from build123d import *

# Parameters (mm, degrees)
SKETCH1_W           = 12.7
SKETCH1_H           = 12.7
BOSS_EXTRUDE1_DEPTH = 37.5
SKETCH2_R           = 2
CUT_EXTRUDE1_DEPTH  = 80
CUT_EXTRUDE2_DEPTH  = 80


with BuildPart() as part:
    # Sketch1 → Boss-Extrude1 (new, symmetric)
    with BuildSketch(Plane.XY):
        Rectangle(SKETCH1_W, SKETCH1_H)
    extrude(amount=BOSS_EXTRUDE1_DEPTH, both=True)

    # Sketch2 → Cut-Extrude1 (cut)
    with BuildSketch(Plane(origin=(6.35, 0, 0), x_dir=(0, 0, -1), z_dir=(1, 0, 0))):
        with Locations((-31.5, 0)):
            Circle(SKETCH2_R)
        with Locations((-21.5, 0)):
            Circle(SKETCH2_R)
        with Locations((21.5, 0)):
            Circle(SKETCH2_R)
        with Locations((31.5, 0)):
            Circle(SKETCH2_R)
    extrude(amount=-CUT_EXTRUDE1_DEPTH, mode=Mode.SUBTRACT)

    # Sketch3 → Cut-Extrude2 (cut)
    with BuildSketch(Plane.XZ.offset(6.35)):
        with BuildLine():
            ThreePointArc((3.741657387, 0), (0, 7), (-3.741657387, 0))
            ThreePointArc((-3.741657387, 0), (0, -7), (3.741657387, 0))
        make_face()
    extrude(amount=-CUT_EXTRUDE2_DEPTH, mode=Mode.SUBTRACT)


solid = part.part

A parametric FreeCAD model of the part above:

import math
import FreeCAD as App
import Part
import Sketcher
from FreeCAD import Vector

doc = App.newDocument("Part")
body = doc.addObject("PartDesign::Body", "Body")

sketch1 = doc.addObject("Sketcher::SketchObject", "Sketch")
body.addObject(sketch1)
sketch1.AttachmentSupport = (doc.XY_Plane, [""])
sketch1.MapMode = "FlatFace"
sketch1.addGeometry([
    Part.LineSegment(Vector(-6.35, 6.35, 0), Vector(-6.35, -6.35, 0)),
    Part.LineSegment(Vector(-6.35, -6.35, 0), Vector(6.35, -6.35, 0)),
    Part.LineSegment(Vector(6.35, -6.35, 0), Vector(6.35, 6.35, 0)),
    Part.LineSegment(Vector(6.35, 6.35, 0), Vector(-6.35, 6.35, 0)),
], False)
sketch1.addConstraint([
    Sketcher.Constraint("Coincident", 0, 2, 1, 1),
    Sketcher.Constraint("Coincident", 1, 2, 2, 1),
    Sketcher.Constraint("Coincident", 2, 2, 3, 1),
    Sketcher.Constraint("Coincident", 3, 2, 0, 1),
    Sketcher.Constraint("Vertical", 0),
    Sketcher.Constraint("Horizontal", 1),
    Sketcher.Constraint("Vertical", 2),
    Sketcher.Constraint("Horizontal", 3),
    Sketcher.Constraint("Symmetric", 0, 2, 2, 2, -1, 1),
    Sketcher.Constraint("Equal", 3, 0),
    Sketcher.Constraint("DistanceX", 1, 1, 1, 2, 12.7),
])
pad1 = doc.addObject("PartDesign::Pad", "Pad")
body.addObject(pad1)
pad1.Profile = sketch1
pad1.Length = 75
pad1.Midplane = True

sketch2 = doc.addObject("Sketcher::SketchObject", "Sketch001")
body.addObject(sketch2)
sketch2.AttachmentSupport = (doc.YZ_Plane, [""])
sketch2.MapMode = "FlatFace"
sketch2.AttachmentOffset = App.Placement(Vector(0, 0, 6.35), App.Rotation())
sketch2.addGeometry([
    Part.Circle(Vector(0, 31.5, 0), Vector(0, 0, 1), 2),
    Part.Circle(Vector(0, 21.5, 0), Vector(0, 0, 1), 2),
    Part.Circle(Vector(0, -21.5, 0), Vector(0, 0, 1), 2),
    Part.Circle(Vector(0, -31.5, 0), Vector(0, 0, 1), 2),
], False)
sketch2.addConstraint([
    Sketcher.Constraint("Equal", 0, 1),
    Sketcher.Constraint("Equal", 1, 2),
    Sketcher.Constraint("Equal", 2, 3),
    Sketcher.Constraint("Symmetric", 1, 3, 2, 3, -1, 1),
    Sketcher.Constraint("Symmetric", 0, 3, 3, 3, -1, 1),
    Sketcher.Constraint("PointOnObject", 0, 3, -2),
    Sketcher.Constraint("PointOnObject", 1, 3, -2),
    Sketcher.Constraint("Diameter", 0, 4.0),
    Sketcher.Constraint("DistanceY", 1, 3, 0, 3, 10.0),
    Sketcher.Constraint("DistanceY", 2, 3, 1, 3, 43.0),
])
pocket1 = doc.addObject("PartDesign::Pocket", "Pocket")
body.addObject(pocket1)
pocket1.Profile = sketch2
pocket1.Length = 80

sketch3 = doc.addObject("Sketcher::SketchObject", "Sketch002")
body.addObject(sketch3)
sketch3.AttachmentSupport = (doc.XZ_Plane, [""])
sketch3.MapMode = "FlatFace"
sketch3.AttachmentOffset = App.Placement(Vector(0, 0, 6.35), App.Rotation())
sketch3.addGeometry([
    Part.ArcOfCircle(Part.Circle(Vector(0, 2.5, 0), Vector(0, 0, 1), 4.5), math.radians(-33.748989), math.radians(213.748989)),
    Part.ArcOfCircle(Part.Circle(Vector(0, -2.5, 0), Vector(0, 0, 1), 4.5), math.radians(146.251011), math.radians(393.748989)),
], False)
sketch3.addConstraint([
    Sketcher.Constraint("Coincident", 0, 1, 1, 2),
    Sketcher.Constraint("Coincident", 1, 1, 0, 2),
    Sketcher.Constraint("Equal", 0, 1),
    Sketcher.Constraint("Symmetric", 0, 3, 1, 3, -1, 1),
    Sketcher.Constraint("PointOnObject", 0, 3, -2),
    Sketcher.Constraint("Radius", 0, 4.5),
    Sketcher.Constraint("DistanceY", 1, 3, 0, 3, 5.0),
])
pocket2 = doc.addObject("PartDesign::Pocket", "Pocket001")
body.addObject(pocket2)
pocket2.Profile = sketch3
pocket2.Length = 80

doc.recompute()
